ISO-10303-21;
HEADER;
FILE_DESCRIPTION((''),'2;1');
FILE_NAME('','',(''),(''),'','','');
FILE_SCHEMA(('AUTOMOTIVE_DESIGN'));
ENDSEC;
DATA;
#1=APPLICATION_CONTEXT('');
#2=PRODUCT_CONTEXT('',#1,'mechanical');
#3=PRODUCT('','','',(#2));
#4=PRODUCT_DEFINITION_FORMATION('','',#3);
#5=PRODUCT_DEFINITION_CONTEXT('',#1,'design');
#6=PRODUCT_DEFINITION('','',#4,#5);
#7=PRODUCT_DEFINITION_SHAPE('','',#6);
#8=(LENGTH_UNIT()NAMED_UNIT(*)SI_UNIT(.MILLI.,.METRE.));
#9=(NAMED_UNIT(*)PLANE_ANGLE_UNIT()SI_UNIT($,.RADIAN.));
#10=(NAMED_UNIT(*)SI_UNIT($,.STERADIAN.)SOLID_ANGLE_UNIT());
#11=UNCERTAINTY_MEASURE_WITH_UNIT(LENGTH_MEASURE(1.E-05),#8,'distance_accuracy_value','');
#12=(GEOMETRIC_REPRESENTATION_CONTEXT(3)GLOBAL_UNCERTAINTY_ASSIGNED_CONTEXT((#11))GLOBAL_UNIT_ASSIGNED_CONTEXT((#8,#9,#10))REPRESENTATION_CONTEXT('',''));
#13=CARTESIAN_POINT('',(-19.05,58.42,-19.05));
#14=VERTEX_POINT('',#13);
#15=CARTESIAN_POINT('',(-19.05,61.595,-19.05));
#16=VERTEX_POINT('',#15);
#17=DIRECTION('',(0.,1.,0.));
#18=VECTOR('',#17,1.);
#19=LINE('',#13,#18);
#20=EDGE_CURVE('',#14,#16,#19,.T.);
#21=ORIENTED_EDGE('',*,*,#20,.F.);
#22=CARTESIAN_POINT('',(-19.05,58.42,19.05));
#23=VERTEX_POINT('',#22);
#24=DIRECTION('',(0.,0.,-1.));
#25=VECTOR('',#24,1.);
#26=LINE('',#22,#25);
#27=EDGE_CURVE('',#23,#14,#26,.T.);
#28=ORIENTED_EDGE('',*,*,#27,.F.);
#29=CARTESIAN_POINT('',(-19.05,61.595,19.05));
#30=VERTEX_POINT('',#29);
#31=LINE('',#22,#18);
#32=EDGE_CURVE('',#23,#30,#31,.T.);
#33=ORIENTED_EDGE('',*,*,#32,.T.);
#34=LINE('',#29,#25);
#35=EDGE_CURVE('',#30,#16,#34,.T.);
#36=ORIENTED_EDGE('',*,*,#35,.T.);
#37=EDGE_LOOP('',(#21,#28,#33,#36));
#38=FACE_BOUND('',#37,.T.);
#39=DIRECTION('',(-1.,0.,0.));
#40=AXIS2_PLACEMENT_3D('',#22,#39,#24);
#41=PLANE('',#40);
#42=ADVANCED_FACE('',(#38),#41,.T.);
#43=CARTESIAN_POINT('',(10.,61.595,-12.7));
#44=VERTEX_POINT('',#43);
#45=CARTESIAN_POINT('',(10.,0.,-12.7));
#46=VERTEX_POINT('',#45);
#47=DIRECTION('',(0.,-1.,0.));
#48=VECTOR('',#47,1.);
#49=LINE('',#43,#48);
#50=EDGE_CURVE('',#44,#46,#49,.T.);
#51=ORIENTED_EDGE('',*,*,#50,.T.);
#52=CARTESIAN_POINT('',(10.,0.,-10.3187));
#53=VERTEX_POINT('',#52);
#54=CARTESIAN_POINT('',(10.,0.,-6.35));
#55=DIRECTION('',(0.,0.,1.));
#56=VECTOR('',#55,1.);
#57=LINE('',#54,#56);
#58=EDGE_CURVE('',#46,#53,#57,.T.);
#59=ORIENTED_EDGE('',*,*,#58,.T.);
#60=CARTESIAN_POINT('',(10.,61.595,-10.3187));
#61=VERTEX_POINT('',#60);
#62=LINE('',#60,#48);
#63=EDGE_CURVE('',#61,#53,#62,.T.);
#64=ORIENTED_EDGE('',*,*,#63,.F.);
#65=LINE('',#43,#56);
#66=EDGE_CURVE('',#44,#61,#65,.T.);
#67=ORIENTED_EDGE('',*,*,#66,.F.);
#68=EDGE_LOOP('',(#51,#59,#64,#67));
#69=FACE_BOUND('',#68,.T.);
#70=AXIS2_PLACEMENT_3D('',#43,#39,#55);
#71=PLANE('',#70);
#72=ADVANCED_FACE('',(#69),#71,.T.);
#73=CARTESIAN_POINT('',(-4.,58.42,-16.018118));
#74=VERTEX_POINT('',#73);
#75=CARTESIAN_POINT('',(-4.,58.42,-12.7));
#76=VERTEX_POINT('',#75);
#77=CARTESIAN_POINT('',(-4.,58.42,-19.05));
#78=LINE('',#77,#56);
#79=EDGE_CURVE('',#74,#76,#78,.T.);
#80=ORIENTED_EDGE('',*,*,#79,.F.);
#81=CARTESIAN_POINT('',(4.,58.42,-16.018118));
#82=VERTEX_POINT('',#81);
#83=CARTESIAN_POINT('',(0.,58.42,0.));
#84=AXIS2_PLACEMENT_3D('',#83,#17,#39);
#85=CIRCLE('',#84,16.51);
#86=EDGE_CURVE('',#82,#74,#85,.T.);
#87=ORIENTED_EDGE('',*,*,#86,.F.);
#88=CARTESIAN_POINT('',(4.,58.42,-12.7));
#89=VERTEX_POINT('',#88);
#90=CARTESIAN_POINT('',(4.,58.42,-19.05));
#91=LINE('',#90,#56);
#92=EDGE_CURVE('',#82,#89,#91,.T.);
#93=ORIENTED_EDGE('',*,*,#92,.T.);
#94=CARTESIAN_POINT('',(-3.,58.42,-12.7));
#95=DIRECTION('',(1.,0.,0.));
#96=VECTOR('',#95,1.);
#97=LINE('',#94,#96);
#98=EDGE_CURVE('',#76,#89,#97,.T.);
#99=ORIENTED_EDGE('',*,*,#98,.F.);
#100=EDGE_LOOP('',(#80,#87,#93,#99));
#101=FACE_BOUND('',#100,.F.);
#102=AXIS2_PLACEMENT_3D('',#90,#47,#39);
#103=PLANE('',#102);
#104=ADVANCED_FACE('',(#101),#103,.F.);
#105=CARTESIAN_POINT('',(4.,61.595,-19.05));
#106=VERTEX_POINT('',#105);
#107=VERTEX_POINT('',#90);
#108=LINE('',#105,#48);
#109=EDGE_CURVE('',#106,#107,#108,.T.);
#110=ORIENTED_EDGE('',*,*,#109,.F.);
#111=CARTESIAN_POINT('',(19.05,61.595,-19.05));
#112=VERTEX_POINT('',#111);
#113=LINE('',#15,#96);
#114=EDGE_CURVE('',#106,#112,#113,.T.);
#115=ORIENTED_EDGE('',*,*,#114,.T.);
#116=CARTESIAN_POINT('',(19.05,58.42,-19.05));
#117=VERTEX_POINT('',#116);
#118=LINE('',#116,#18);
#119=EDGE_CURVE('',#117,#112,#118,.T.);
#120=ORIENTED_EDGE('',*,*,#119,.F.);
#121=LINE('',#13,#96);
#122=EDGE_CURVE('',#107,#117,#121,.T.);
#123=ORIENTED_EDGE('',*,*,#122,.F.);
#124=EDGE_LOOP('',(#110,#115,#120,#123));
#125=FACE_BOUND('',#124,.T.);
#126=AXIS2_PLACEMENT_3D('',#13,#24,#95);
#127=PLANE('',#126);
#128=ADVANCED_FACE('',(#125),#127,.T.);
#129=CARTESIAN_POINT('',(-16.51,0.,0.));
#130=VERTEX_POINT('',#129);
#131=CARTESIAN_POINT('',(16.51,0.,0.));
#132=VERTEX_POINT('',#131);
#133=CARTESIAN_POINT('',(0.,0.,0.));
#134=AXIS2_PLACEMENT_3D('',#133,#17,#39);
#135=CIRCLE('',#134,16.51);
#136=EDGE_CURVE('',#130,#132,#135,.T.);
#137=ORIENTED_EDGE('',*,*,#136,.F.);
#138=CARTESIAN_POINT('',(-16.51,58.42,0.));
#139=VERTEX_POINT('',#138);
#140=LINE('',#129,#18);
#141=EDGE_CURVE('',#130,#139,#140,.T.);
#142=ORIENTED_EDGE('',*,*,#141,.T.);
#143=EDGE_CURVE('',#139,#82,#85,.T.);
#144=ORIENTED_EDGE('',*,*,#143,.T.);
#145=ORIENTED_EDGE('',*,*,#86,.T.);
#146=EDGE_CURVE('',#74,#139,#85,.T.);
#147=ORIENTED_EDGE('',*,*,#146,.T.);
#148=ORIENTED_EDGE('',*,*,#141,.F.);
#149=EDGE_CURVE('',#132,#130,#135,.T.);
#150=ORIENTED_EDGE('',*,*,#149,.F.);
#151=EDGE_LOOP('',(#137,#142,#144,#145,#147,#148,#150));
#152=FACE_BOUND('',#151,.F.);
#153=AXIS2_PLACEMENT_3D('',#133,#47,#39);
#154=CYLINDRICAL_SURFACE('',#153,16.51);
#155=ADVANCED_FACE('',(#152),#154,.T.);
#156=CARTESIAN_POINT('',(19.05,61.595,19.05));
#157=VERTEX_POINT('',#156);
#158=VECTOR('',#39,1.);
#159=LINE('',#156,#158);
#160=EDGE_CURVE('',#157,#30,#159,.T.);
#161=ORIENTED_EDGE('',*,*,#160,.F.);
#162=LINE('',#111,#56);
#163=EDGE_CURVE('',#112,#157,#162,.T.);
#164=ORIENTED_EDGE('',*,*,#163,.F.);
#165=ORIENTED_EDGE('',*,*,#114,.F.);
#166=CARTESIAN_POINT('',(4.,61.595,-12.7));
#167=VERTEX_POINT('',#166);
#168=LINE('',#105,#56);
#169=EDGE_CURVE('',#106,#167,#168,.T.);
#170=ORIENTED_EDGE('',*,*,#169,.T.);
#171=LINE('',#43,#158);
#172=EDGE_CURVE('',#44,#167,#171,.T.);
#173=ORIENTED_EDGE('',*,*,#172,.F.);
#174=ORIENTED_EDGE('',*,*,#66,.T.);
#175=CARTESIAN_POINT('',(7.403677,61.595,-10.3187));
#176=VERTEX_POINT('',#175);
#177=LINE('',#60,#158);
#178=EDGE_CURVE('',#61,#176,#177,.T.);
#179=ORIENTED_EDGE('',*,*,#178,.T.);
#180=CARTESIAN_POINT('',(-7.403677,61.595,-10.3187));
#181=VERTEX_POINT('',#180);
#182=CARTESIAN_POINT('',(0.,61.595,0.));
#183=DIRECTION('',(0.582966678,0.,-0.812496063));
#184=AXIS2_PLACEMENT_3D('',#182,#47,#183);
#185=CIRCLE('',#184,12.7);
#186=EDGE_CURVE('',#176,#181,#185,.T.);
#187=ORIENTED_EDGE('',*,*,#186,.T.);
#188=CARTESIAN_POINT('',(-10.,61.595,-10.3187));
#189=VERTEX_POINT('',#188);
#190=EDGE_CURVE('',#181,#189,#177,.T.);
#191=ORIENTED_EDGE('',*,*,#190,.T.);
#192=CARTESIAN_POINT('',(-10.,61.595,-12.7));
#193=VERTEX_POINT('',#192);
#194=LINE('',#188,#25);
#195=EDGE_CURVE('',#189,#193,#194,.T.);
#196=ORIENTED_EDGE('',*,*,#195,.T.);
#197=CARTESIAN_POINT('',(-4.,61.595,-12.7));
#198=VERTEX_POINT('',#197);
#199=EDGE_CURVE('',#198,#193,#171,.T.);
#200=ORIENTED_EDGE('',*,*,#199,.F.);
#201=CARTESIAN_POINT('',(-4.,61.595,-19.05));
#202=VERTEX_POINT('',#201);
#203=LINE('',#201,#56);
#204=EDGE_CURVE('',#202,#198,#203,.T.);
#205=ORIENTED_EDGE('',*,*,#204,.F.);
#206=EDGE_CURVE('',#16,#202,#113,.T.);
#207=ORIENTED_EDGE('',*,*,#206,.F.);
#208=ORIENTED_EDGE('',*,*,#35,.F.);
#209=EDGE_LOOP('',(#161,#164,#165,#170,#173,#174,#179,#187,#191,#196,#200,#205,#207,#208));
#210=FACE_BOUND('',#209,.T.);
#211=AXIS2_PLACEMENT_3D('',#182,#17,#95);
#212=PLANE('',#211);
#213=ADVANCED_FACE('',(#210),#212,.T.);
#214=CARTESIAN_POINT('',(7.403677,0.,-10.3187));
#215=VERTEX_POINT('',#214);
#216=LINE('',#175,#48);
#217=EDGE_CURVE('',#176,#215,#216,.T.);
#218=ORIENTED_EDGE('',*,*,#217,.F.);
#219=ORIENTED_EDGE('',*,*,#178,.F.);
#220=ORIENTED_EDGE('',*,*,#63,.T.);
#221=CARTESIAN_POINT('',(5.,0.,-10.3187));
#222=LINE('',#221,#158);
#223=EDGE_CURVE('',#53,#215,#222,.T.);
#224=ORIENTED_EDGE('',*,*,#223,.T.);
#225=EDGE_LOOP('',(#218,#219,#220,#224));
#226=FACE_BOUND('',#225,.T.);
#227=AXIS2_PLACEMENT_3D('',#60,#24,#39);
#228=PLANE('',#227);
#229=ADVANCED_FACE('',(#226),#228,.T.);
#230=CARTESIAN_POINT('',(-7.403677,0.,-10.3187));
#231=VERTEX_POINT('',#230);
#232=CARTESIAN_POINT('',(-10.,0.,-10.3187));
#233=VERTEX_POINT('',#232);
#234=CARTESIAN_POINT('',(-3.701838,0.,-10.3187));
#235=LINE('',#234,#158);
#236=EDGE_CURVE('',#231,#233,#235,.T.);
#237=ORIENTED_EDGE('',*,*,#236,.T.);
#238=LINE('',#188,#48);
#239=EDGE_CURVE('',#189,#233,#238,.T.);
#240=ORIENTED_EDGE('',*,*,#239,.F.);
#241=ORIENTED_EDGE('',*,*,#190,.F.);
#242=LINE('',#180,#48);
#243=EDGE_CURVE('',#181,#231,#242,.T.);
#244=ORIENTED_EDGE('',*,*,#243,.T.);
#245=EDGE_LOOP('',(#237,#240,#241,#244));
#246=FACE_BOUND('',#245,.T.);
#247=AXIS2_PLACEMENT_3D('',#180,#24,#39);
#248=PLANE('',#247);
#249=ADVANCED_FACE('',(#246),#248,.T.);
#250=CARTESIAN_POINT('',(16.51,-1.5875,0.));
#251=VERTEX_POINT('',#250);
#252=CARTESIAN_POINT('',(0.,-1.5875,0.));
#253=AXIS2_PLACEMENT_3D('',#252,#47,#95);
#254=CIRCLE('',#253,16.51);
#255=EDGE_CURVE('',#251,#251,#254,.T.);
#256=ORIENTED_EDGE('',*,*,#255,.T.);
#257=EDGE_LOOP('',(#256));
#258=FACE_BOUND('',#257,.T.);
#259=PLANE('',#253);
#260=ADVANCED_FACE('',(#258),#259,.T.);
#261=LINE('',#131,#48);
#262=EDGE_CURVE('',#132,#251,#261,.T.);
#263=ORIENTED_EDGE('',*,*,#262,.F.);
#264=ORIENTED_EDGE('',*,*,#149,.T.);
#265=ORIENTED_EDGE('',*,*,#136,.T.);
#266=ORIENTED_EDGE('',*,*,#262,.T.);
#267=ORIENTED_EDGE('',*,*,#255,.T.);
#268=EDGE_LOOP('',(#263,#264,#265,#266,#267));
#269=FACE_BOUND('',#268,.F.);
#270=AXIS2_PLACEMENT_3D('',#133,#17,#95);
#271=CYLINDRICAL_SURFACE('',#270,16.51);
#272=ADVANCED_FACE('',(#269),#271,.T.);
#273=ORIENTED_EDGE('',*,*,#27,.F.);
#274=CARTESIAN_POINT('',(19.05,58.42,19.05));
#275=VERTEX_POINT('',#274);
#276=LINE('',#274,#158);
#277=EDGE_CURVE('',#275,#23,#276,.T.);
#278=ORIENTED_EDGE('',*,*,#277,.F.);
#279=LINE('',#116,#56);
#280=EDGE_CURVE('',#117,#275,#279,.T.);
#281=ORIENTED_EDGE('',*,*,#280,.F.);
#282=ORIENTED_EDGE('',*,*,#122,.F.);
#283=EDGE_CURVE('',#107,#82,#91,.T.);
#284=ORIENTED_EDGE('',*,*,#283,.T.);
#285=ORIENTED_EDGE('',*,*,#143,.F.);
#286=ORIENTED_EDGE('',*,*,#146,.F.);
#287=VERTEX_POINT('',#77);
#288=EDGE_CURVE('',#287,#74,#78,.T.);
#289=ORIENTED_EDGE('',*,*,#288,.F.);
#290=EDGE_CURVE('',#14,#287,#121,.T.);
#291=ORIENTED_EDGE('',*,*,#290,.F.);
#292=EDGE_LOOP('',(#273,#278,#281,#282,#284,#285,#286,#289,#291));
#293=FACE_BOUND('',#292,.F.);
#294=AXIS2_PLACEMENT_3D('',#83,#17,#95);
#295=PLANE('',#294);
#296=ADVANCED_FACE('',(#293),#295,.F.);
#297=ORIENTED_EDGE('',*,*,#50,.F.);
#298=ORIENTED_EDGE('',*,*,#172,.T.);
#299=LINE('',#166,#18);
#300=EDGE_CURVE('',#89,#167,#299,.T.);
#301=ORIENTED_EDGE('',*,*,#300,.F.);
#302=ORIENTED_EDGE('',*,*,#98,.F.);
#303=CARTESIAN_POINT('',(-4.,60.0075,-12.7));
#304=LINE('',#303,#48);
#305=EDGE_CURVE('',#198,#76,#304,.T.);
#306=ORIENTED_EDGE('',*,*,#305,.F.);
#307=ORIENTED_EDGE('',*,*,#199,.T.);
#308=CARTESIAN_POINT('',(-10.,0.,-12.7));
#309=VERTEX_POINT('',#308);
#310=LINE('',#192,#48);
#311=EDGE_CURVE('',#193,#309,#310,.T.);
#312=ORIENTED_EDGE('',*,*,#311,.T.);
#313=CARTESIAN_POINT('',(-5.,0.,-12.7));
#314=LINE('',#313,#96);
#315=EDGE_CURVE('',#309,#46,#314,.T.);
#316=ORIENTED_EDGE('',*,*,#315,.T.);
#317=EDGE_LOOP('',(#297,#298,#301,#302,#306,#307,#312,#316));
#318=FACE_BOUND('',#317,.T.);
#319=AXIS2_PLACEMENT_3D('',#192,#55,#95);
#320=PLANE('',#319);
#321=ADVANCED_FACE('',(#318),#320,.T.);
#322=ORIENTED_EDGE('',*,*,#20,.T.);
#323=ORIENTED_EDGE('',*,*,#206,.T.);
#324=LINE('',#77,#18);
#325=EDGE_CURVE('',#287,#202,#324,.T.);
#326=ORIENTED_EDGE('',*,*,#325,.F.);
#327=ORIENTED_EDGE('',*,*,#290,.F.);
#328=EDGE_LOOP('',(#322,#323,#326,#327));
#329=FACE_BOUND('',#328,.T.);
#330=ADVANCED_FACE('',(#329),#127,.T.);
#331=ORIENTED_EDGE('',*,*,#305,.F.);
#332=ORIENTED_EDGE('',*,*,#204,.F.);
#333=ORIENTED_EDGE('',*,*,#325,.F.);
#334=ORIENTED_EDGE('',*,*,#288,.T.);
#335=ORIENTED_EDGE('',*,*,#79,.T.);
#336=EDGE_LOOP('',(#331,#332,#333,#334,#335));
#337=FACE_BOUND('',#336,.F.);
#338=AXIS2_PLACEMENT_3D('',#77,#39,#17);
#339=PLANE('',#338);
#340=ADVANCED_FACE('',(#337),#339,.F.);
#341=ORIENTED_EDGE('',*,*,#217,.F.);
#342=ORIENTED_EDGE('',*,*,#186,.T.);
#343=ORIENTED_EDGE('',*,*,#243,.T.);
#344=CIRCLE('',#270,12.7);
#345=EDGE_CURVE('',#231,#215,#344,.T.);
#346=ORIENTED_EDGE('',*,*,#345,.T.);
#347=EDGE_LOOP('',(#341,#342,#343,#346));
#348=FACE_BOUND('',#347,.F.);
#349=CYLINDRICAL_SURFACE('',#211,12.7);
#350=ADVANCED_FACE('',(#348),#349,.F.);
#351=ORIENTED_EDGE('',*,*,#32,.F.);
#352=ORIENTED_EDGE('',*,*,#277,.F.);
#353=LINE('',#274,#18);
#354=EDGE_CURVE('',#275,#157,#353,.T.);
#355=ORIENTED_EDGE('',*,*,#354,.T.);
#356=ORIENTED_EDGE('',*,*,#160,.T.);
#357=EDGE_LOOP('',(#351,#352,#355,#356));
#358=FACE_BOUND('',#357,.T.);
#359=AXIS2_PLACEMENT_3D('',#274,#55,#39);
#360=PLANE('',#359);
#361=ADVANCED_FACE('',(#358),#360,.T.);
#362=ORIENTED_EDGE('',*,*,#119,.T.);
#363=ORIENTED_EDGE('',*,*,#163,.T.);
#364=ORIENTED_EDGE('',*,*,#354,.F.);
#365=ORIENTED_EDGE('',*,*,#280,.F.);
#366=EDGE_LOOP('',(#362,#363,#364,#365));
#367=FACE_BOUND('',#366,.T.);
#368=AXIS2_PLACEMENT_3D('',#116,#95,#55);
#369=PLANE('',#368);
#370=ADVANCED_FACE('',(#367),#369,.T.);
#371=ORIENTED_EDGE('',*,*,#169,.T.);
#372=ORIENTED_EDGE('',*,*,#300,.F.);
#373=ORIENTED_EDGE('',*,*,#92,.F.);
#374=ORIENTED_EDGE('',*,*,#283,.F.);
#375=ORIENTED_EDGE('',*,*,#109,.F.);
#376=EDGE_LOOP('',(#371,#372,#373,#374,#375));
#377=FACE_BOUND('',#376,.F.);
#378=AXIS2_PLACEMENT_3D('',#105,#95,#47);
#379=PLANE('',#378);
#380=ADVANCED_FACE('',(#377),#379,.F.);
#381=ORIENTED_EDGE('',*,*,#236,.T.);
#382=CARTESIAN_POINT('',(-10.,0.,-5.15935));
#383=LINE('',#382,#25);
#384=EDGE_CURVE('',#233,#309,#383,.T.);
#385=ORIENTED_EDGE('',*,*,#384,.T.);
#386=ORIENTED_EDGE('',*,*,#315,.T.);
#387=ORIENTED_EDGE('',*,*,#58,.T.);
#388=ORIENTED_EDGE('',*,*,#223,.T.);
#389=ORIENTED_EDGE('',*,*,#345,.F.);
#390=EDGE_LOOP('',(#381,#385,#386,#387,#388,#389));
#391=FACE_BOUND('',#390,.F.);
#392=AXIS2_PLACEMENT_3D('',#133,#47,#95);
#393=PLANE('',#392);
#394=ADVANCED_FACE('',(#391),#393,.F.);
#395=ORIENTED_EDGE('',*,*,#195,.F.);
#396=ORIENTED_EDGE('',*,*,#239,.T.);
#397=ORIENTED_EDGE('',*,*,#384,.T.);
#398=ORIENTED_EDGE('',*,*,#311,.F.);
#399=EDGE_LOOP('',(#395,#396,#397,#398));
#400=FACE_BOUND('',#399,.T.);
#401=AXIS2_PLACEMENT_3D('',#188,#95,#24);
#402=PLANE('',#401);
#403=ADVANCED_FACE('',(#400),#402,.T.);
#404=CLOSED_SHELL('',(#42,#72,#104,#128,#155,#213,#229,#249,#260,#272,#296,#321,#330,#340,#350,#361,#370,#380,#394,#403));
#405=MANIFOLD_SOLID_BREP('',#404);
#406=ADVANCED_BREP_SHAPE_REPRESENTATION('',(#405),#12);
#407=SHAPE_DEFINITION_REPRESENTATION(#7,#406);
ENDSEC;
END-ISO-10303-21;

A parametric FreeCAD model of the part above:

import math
import FreeCAD as App
import Part
import Sketcher

V = App.Vector
Q = App.Units.Quantity

doc = App.newDocument("Part")
body = doc.addObject("PartDesign::Body", "Body")

sketch1 = body.newObject("Sketcher::SketchObject", "Sketch")
sketch1.AttachmentSupport = (doc.getObject("XZ_Plane"), [""])
sketch1.MapMode = "FlatFace"
sketch1.addGeometry(Part.Circle(V(0, 0, 0), V(0, 0, 1), 17), False)
sketch1.addConstraint([
    Sketcher.Constraint("Coincident", 0, 3, -1, 1),
    Sketcher.Constraint("Diameter", 0, Q("1.3 in")),
])
pad1 = body.newObject("PartDesign::Pad", "Pad")
pad1.Profile = sketch1
pad1.Length = Q("2.3 in")
pad1.Reversed = True

sketch2 = body.newObject("Sketcher::SketchObject", "Sketch001")
sketch2.AttachmentSupport = (doc.getObject("XZ_Plane"), [""])
sketch2.MapMode = "FlatFace"
sketch2.AttachmentOffset = App.Placement(V(0, 0, -2.3 * 25.4), App.Rotation())
sketch2.addGeometry([
    Part.LineSegment(V(19, -19, 0), V(-19, -19, 0)),
    Part.LineSegment(V(-19, -19, 0), V(-19, 19, 0)),
    Part.LineSegment(V(-19, 19, 0), V(19, 19, 0)),
    Part.LineSegment(V(19, 19, 0), V(19, -19, 0)),
], False)
sketch2.addConstraint([
    Sketcher.Constraint("Coincident", 0, 2, 1, 1),
    Sketcher.Constraint("Coincident", 1, 2, 2, 1),
    Sketcher.Constraint("Coincident", 2, 2, 3, 1),
    Sketcher.Constraint("Coincident", 3, 2, 0, 1),
    Sketcher.Constraint("Horizontal", 0),
    Sketcher.Constraint("Vertical", 1),
    Sketcher.Constraint("Horizontal", 2),
    Sketcher.Constraint("Vertical", 3),
    Sketcher.Constraint("Symmetric", 0, 2, 2, 2, -1, 1),
    Sketcher.Constraint("Equal", 2, 1),
    Sketcher.Constraint("DistanceX", 0, 2, 0, 1, Q("1.5 in")),
])
pad2 = body.newObject("PartDesign::Pad", "Pad001")
pad2.Profile = sketch2
pad2.Length = Q("0.125 in")
pad2.Reversed = True

sketch3 = body.newObject("Sketcher::SketchObject", "Sketch002")
sketch3.AttachmentSupport = (doc.getObject("XZ_Plane"), [""])
sketch3.MapMode = "FlatFace"
sketch3.AttachmentOffset = App.Placement(V(0, 0, -2.425 * 25.4), App.Rotation())
sketch3.addGeometry([
    Part.ArcOfCircle(Part.Circle(V(0, 0, 0), V(0, 0, 1), 12.7), math.radians(-54), math.radians(234)),
    Part.LineSegment(V(7.4, -10.3, 0), V(10, -10.3, 0)),
    Part.LineSegment(V(10, -10.3, 0), V(10, -12.7, 0)),
    Part.LineSegment(V(10, -12.7, 0), V(-10, -12.7, 0)),
    Part.LineSegment(V(-10, -12.7, 0), V(-10, -10.3, 0)),
    Part.LineSegment(V(-10, -10.3, 0), V(-7.4, -10.3, 0)),
], False)
sketch3.addConstraint([
    Sketcher.Constraint("Coincident", 0, 1, 1, 1),
    Sketcher.Constraint("Coincident", 1, 2, 2, 1),
    Sketcher.Constraint("Coincident", 2, 2, 3, 1),
    Sketcher.Constraint("Coincident", 3, 2, 4, 1),
    Sketcher.Constraint("Coincident", 4, 2, 5, 1),
    Sketcher.Constraint("Coincident", 5, 2, 0, 2),
    Sketcher.Constraint("Horizontal", 1),
    Sketcher.Constraint("Vertical", 2),
    Sketcher.Constraint("Horizontal", 3),
    Sketcher.Constraint("Vertical", 4),
    Sketcher.Constraint("Horizontal", 5),
    Sketcher.Constraint("Coincident", 0, 3, -1, 1),
    Sketcher.Constraint("Symmetric", 1, 2, 4, 2, -2),
    Sketcher.Constraint("Radius", 0, Q("0.5 in")),
    Sketcher.Constraint("DistanceY", 2, 2, 2, 1, Q("0.093752 in")),
    Sketcher.Constraint("DistanceX", 3, 2, 3, 1, Q("0.7874 in")),
    Sketcher.Constraint("DistanceY", 2, 2, -1, 1, Q("0.5 in")),
])
pocket1 = body.newObject("PartDesign::Pocket", "Pocket")
pocket1.Profile = sketch3
pocket1.Length = Q("2.4375 in")
pocket1.Reversed = True

sketch4 = body.newObject("Sketcher::SketchObject", "Sketch003")
sketch4.AttachmentSupport = (doc.getObject("XY_Plane"), [""])
sketch4.MapMode = "FlatFace"
sketch4.AttachmentOffset = App.Placement(V(0, 0, -0.75 * 25.4), App.Rotation())
sketch4.addGeometry([
    Part.LineSegment(V(4, 61.6, 0), V(4, 58.4, 0)),
    Part.LineSegment(V(4, 58.4, 0), V(-4, 58.4, 0)),
    Part.LineSegment(V(-4, 58.4, 0), V(-4, 61.6, 0)),
    Part.LineSegment(V(-4, 61.6, 0), V(4, 61.6, 0)),
], False)
sketch4.addConstraint([
    Sketcher.Constraint("Coincident", 0, 2, 1, 1),
    Sketcher.Constraint("Coincident", 1, 2, 2, 1),
    Sketcher.Constraint("Coincident", 2, 2, 3, 1),
    Sketcher.Constraint("Coincident", 3, 2, 0, 1),
    Sketcher.Constraint("Vertical", 0),
    Sketcher.Constraint("Horizontal", 1),
    Sketcher.Constraint("Vertical", 2),
    Sketcher.Constraint("Horizontal", 3),
    Sketcher.Constraint("DistanceY", 0, 2, 0, 1, Q("0.125 in")),
    Sketcher.Constraint("DistanceX", 1, 2, 1, 1, Q("8 mm")),
    Sketcher.Constraint("DistanceY", -1, 1, 0, 2, Q("2.3 in")),
    Sketcher.Constraint("DistanceX", -1, 1, 0, 2, Q("4 mm")),
])
pocket2 = body.newObject("PartDesign::Pocket", "Pocket001")
pocket2.Profile = sketch4
pocket2.Length = Q("0.5 in")
pocket2.Reversed = True

sketch5 = body.newObject("Sketcher::SketchObject", "Sketch004")
sketch5.AttachmentSupport = (doc.getObject("XZ_Plane"), [""])
sketch5.MapMode = "FlatFace"
sketch5.addGeometry(Part.Circle(V(0, 0, 0), V(0, 0, 1), 17), False)
sketch5.addConstraint([
    Sketcher.Constraint("Coincident", 0, 3, -1, 1),
    Sketcher.Constraint("Diameter", 0, Q("1.3 in")),
])
pad3 = body.newObject("PartDesign::Pad", "Pad002")
pad3.Profile = sketch5
pad3.Length = Q("0.0625 in")

doc.recompute()
